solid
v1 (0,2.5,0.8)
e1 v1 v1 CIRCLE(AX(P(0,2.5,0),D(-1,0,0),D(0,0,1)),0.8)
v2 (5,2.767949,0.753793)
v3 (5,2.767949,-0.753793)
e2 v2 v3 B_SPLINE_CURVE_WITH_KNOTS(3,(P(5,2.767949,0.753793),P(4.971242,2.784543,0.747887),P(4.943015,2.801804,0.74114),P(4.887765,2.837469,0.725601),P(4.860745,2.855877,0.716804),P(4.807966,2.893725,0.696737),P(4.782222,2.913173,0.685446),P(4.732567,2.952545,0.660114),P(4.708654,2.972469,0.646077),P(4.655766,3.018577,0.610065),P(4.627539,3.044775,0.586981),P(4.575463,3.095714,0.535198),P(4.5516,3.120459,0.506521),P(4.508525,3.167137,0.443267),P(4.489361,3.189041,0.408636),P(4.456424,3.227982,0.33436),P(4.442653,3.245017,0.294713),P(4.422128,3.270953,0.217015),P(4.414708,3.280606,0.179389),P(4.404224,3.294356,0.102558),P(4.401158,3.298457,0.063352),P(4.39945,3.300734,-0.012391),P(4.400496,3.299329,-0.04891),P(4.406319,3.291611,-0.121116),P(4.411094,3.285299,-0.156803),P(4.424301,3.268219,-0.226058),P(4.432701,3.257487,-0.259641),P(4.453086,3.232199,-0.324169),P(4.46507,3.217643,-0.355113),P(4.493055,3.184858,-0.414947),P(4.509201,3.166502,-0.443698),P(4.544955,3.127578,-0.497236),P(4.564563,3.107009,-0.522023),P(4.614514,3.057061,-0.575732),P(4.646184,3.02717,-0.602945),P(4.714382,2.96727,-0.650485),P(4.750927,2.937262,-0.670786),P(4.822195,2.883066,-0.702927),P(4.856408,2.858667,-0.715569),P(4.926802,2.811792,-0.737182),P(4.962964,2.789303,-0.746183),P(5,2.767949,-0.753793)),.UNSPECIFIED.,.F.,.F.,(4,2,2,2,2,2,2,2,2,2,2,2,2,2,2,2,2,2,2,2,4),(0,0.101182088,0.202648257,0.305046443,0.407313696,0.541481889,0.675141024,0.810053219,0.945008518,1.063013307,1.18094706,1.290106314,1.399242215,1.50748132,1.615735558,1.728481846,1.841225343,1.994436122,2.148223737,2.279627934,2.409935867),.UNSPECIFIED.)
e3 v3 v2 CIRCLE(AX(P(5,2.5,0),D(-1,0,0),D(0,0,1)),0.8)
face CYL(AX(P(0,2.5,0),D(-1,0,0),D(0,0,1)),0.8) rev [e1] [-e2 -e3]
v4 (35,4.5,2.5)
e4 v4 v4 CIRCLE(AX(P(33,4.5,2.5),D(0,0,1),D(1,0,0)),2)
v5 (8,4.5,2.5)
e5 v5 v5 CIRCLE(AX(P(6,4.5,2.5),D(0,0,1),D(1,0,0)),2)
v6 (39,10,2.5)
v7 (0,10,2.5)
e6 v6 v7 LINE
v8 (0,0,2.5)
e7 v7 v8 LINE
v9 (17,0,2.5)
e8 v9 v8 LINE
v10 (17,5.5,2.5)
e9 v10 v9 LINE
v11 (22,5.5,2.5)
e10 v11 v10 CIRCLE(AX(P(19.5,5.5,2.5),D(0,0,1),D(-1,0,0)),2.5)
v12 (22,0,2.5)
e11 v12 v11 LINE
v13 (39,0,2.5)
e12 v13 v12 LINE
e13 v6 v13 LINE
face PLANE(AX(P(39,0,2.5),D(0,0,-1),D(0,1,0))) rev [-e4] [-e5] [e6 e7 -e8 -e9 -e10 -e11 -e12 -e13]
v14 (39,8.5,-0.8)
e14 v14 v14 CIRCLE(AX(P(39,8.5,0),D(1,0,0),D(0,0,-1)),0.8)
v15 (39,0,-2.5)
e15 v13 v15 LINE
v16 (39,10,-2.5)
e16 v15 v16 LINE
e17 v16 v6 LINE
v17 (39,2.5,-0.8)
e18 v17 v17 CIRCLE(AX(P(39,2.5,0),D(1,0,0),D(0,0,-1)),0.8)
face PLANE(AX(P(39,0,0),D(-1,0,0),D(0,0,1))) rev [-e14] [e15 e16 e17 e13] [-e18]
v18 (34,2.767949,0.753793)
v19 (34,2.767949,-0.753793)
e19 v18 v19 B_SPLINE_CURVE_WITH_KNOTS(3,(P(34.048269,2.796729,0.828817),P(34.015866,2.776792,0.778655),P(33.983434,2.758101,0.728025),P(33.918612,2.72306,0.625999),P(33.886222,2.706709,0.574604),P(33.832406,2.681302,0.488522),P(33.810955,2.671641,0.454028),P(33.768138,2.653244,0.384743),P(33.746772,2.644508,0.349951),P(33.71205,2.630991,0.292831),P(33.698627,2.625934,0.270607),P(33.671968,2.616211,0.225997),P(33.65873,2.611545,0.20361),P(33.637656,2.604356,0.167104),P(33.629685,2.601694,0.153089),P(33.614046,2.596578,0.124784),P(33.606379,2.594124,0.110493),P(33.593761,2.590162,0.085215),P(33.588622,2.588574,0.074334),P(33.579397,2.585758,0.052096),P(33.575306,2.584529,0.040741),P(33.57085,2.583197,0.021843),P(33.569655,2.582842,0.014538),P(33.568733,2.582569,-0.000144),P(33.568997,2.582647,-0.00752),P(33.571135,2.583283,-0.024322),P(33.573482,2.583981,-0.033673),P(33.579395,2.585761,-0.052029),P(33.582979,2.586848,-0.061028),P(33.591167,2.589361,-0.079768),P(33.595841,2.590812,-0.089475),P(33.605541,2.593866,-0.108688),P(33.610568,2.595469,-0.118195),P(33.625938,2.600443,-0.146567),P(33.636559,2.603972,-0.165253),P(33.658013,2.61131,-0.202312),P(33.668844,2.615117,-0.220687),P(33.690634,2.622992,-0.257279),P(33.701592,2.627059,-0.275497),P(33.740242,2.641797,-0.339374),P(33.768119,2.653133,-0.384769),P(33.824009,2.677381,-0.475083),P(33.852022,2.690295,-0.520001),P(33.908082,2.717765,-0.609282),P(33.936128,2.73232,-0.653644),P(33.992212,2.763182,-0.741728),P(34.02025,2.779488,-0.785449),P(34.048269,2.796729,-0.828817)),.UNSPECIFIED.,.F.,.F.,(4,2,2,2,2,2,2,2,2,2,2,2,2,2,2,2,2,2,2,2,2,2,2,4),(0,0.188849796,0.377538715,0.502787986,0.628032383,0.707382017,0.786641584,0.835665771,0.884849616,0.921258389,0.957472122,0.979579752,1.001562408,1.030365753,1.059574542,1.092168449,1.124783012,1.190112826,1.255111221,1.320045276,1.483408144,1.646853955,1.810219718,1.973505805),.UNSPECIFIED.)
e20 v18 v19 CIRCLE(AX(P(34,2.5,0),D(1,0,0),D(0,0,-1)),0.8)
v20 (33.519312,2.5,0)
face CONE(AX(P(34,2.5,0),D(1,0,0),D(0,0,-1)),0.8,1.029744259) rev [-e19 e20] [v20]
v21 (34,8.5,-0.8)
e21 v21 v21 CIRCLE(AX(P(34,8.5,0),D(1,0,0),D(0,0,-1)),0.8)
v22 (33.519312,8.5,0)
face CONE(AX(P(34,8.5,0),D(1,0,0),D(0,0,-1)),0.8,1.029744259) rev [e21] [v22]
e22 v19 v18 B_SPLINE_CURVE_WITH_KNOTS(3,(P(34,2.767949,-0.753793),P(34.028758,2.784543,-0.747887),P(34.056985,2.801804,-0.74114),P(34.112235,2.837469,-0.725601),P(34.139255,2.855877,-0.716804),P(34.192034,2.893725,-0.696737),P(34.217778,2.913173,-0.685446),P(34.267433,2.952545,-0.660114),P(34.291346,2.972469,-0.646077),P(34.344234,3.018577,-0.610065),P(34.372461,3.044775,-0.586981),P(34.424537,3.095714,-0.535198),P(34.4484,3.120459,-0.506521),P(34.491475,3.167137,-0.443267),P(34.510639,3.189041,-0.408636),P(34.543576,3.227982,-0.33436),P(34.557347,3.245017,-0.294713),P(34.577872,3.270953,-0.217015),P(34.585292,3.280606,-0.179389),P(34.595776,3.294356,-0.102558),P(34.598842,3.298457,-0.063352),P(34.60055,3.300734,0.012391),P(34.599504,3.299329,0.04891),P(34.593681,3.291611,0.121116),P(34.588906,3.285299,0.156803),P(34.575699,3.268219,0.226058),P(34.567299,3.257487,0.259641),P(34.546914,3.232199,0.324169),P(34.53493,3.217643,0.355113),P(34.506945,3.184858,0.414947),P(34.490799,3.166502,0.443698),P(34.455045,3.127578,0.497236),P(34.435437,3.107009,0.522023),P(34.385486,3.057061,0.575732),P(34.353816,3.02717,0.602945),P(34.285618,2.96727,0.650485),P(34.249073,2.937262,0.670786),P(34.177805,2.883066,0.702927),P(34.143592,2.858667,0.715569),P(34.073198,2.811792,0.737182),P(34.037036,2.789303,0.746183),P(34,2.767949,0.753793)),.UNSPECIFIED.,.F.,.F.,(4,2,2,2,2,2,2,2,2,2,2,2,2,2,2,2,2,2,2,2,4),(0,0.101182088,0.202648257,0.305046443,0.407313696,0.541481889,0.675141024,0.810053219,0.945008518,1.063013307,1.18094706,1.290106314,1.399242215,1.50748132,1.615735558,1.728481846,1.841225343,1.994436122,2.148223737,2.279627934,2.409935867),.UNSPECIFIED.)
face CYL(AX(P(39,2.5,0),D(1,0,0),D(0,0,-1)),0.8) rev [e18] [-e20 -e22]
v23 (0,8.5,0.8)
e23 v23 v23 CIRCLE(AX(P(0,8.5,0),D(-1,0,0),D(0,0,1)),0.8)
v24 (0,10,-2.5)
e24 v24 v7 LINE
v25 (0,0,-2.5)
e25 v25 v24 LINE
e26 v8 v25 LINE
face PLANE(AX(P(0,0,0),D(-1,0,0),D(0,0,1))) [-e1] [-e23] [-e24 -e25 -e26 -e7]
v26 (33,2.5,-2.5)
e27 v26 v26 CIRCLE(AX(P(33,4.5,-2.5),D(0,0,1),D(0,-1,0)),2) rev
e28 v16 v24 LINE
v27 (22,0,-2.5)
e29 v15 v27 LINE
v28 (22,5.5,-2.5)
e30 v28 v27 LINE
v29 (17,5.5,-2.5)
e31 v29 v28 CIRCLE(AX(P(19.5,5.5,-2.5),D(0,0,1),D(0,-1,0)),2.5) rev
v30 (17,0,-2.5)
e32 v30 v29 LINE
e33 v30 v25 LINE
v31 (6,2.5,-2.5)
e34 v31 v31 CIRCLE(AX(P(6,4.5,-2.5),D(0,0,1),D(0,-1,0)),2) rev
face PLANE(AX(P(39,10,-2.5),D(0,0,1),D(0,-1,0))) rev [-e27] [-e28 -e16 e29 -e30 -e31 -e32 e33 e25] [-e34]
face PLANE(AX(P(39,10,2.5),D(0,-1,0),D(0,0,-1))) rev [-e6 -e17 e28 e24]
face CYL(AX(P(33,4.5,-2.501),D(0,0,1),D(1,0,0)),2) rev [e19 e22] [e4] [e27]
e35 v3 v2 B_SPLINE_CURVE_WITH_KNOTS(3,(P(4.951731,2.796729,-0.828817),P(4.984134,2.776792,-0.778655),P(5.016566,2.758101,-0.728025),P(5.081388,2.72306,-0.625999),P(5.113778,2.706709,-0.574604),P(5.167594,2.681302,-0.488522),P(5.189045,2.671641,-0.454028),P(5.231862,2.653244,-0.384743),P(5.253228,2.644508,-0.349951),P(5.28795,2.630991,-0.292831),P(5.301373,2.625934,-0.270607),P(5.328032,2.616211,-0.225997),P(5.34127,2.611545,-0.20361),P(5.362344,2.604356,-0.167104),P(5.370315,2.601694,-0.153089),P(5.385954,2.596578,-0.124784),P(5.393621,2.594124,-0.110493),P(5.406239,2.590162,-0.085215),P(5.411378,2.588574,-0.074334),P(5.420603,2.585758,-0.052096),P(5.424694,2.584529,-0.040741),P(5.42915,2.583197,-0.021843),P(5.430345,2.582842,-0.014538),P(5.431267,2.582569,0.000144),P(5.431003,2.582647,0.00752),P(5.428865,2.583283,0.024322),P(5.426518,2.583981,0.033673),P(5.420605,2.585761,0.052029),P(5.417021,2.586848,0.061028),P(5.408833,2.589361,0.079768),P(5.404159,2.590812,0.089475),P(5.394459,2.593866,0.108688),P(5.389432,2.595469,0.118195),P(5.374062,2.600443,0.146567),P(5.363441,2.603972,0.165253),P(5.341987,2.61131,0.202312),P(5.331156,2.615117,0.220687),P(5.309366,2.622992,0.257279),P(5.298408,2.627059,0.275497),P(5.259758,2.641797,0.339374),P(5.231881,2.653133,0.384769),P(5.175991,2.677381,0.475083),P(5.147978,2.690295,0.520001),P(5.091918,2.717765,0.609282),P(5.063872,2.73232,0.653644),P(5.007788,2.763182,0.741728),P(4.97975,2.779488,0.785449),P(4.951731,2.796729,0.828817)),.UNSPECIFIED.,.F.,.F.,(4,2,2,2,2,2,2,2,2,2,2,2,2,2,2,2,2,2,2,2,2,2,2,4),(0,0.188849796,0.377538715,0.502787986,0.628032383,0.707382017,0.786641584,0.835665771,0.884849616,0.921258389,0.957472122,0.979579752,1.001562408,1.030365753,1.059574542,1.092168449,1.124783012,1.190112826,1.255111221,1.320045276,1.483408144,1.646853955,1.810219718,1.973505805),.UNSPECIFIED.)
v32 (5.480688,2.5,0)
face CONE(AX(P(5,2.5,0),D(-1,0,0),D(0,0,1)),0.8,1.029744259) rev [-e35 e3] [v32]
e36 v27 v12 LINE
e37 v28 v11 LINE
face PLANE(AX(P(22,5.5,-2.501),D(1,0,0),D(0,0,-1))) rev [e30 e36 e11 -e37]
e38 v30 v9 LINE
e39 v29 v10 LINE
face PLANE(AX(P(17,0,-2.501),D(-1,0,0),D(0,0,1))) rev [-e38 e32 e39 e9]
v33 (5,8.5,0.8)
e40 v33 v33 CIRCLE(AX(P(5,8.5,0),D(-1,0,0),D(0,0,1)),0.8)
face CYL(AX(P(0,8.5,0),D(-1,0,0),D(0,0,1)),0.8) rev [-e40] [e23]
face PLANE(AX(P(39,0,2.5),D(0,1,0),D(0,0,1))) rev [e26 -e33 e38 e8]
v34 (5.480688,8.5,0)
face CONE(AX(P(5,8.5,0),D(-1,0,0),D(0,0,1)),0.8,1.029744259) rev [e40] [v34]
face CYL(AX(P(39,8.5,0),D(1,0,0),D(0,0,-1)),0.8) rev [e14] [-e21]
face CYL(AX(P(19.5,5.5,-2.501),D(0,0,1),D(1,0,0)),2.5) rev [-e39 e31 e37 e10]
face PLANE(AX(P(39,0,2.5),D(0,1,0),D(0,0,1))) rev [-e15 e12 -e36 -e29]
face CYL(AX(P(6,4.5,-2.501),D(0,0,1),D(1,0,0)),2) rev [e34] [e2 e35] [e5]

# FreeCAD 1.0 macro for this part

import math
import FreeCAD as App
import Part
import Sketcher

doc = App.newDocument("Part")
body = doc.addObject("PartDesign::Body", "Body")

sketch1 = doc.addObject("Sketcher::SketchObject", "Sketch")
body.addObject(sketch1)
sketch1.AttachmentSupport = (doc.YZ_Plane, [""])
sketch1.MapMode = "FlatFace"
sketch1.addGeometry(Part.LineSegment(App.Vector(10, 2, 0), App.Vector(0, 2, 0)), False)
sketch1.addGeometry(Part.LineSegment(App.Vector(0, 2, 0), App.Vector(0, -2, 0)), False)
sketch1.addGeometry(Part.LineSegment(App.Vector(0, -2, 0), App.Vector(10, -2, 0)), False)
sketch1.addGeometry(Part.LineSegment(App.Vector(10, -2, 0), App.Vector(10, 2, 0)), False)
sketch1.addConstraint(Sketcher.Constraint("Coincident", 0, 2, 1, 1))
sketch1.addConstraint(Sketcher.Constraint("Coincident", 1, 2, 2, 1))
sketch1.addConstraint(Sketcher.Constraint("Coincident", 2, 2, 3, 1))
sketch1.addConstraint(Sketcher.Constraint("Coincident", 3, 2, 0, 1))
sketch1.addConstraint(Sketcher.Constraint("Horizontal", 0))
sketch1.addConstraint(Sketcher.Constraint("Vertical", 1))
sketch1.addConstraint(Sketcher.Constraint("Horizontal", 2))
sketch1.addConstraint(Sketcher.Constraint("Vertical", 3))
sketch1.addConstraint(Sketcher.Constraint("Symmetric", 0, 2, 1, 2, -1, 1))
sketch1.addConstraint(Sketcher.Constraint("DistanceX", 0, 2, 0, 1, 10.0))
sketch1.addConstraint(Sketcher.Constraint("DistanceY", 1, 2, 1, 1, 5.0))
pad1 = doc.addObject("PartDesign::Pad", "Pad")
body.addObject(pad1)
pad1.Profile = sketch1
pad1.Length = 39

sketch2 = doc.addObject("Sketcher::SketchObject", "Sketch001")
body.addObject(sketch2)
sketch2.AttachmentSupport = (doc.YZ_Plane, [""])
sketch2.MapMode = "FlatFace"
sketch2.AttachmentOffset = App.Placement(App.Vector(0, 0, 39), App.Rotation())
sketch2.addGeometry(Part.Circle(App.Vector(8.5, 0, 0), App.Vector(0, 0, 1), 0.8), False)
sketch2.addGeometry(Part.Circle(App.Vector(2.5, 0, 0), App.Vector(0, 0, 1), 0.8), False)
sketch2.addConstraint(Sketcher.Constraint("Equal", 0, 1))
sketch2.addConstraint(Sketcher.Constraint("PointOnObject", 0, 3, -1))
sketch2.addConstraint(Sketcher.Constraint("PointOnObject", 1, 3, -1))
sketch2.addConstraint(Sketcher.Constraint("Diameter", 0, 1.6))
sketch2.addConstraint(Sketcher.Constraint("DistanceX", 1, 3, 0, 3, 6.0))
sketch2.addConstraint(Sketcher.Constraint("DistanceX", -1, 1, 0, 3, 8.5))
doc.recompute()
hole = doc.addObject("PartDesign::Hole", "Hole")
body.addObject(hole)
hole.Profile = sketch2
hole.ThreadType = "None"
hole.Diameter = 1.6
hole.DepthType = "Dimension"
hole.Depth = 5
hole.DrillPoint = "Angled"
hole.DrillPointAngle = 118

sketch3 = doc.addObject("Sketcher::SketchObject", "Sketch002")
body.addObject(sketch3)
sketch3.AttachmentSupport = (doc.YZ_Plane, [""])
sketch3.MapMode = "FlatFace"
sketch3.addGeometry(Part.Circle(App.Vector(8.5, 0, 0), App.Vector(0, 0, 1), 0.8), False)
sketch3.addGeometry(Part.Circle(App.Vector(2.5, 0, 0), App.Vector(0, 0, 1), 0.8), False)
sketch3.addConstraint(Sketcher.Constraint("Equal", 0, 1))
sketch3.addConstraint(Sketcher.Constraint("PointOnObject", 0, 3, -1))
sketch3.addConstraint(Sketcher.Constraint("PointOnObject", 1, 3, -1))
sketch3.addConstraint(Sketcher.Constraint("Diameter", 0, 1.6))
sketch3.addConstraint(Sketcher.Constraint("DistanceX", 1, 3, 0, 3, 6.0))
sketch3.addConstraint(Sketcher.Constraint("DistanceX", -1, 1, 0, 3, 8.5))
doc.recompute()
hole2 = doc.addObject("PartDesign::Hole", "Hole001")
body.addObject(hole2)
hole2.Profile = sketch3
hole2.ThreadType = "None"
hole2.Diameter = 1.6
hole2.DepthType = "Dimension"
hole2.Depth = 5
hole2.DrillPoint = "Angled"
hole2.DrillPointAngle = 118
hole2.Reversed = True

sketch4 = doc.addObject("Sketcher::SketchObject", "Sketch003")
body.addObject(sketch4)
sketch4.AttachmentSupport = (doc.XY_Plane, [""])
sketch4.MapMode = "FlatFace"
sketch4.AttachmentOffset = App.Placement(App.Vector(0, 0, 2.5), App.Rotation())
sketch4.addGeometry(Part.Circle(App.Vector(6, 4.5, 0), App.Vector(0, 0, 1), 2), False)
sketch4.addConstraint(Sketcher.Constraint("Diameter", 0, 4.0))
sketch4.addConstraint(Sketcher.Constraint("DistanceX", -1, 1, 0, 3, 6.0))
sketch4.addConstraint(Sketcher.Constraint("DistanceY", -1, 1, 0, 3, 4.5))
pocket1 = doc.addObject("PartDesign::Pocket", "Pocket")
body.addObject(pocket1)
pocket1.Profile = sketch4
pocket1.Type = "UpToFirst"

sketch5 = doc.addObject("Sketcher::SketchObject", "Sketch004")
body.addObject(sketch5)
sketch5.AttachmentSupport = (doc.XY_Plane, [""])
sketch5.MapMode = "FlatFace"
sketch5.AttachmentOffset = App.Placement(App.Vector(0, 0, 2.5), App.Rotation())
sketch5.addGeometry(Part.Circle(App.Vector(33, 4.5, 0), App.Vector(0, 0, 1), 2), False)
sketch5.addConstraint(Sketcher.Constraint("Diameter", 0, 4.0))
sketch5.addConstraint(Sketcher.Constraint("DistanceX", -1, 1, 0, 3, 33.0))
sketch5.addConstraint(Sketcher.Constraint("DistanceY", -1, 1, 0, 3, 4.5))
pocket2 = doc.addObject("PartDesign::Pocket", "Pocket001")
body.addObject(pocket2)
pocket2.Profile = sketch5
pocket2.Type = "UpToFirst"

sketch6 = doc.addObject("Sketcher::SketchObject", "Sketch005")
body.addObject(sketch6)
sketch6.AttachmentSupport = (doc.XY_Plane, [""])
sketch6.MapMode = "FlatFace"
sketch6.AttachmentOffset = App.Placement(App.Vector(0, 0, 2.5), App.Rotation())
sketch6.addGeometry(Part.LineSegment(App.Vector(17, 5.5, 0), App.Vector(17, 0, 0)), False)
sketch6.addGeometry(Part.LineSegment(App.Vector(17, 0, 0), App.Vector(22, 0, 0)), False)
sketch6.addGeometry(Part.LineSegment(App.Vector(22, 0, 0), App.Vector(22, 5.5, 0)), False)
sketch6.addGeometry(Part.ArcOfCircle(Part.Circle(App.Vector(19.5, 5.5, 0), App.Vector(0, 0, 1), 2.5), math.radians(0), math.radians(180)), False)
sketch6.addConstraint(Sketcher.Constraint("Coincident", 0, 2, 1, 1))
sketch6.addConstraint(Sketcher.Constraint("Coincident", 1, 2, 2, 1))
sketch6.addConstraint(Sketcher.Constraint("Tangent", 2, 2, 3, 1))
sketch6.addConstraint(Sketcher.Constraint("Tangent", 3, 2, 0, 1))
sketch6.addConstraint(Sketcher.Constraint("Vertical", 0))
sketch6.addConstraint(Sketcher.Constraint("Horizontal", 1))
sketch6.addConstraint(Sketcher.Constraint("Vertical", 2))
sketch6.addConstraint(Sketcher.Constraint("PointOnObject", 0, 2, -1))
sketch6.addConstraint(Sketcher.Constraint("Radius", 3, 2.5))
sketch6.addConstraint(Sketcher.Constraint("DistanceY", 0, 2, 0, 1, 5.5))
sketch6.addConstraint(Sketcher.Constraint("DistanceX", -1, 1, 0, 2, 17.0))
pocket3 = doc.addObject("PartDesign::Pocket", "Pocket002")
body.addObject(pocket3)
pocket3.Profile = sketch6
pocket3.Type = "UpToFirst"

doc.recompute()
